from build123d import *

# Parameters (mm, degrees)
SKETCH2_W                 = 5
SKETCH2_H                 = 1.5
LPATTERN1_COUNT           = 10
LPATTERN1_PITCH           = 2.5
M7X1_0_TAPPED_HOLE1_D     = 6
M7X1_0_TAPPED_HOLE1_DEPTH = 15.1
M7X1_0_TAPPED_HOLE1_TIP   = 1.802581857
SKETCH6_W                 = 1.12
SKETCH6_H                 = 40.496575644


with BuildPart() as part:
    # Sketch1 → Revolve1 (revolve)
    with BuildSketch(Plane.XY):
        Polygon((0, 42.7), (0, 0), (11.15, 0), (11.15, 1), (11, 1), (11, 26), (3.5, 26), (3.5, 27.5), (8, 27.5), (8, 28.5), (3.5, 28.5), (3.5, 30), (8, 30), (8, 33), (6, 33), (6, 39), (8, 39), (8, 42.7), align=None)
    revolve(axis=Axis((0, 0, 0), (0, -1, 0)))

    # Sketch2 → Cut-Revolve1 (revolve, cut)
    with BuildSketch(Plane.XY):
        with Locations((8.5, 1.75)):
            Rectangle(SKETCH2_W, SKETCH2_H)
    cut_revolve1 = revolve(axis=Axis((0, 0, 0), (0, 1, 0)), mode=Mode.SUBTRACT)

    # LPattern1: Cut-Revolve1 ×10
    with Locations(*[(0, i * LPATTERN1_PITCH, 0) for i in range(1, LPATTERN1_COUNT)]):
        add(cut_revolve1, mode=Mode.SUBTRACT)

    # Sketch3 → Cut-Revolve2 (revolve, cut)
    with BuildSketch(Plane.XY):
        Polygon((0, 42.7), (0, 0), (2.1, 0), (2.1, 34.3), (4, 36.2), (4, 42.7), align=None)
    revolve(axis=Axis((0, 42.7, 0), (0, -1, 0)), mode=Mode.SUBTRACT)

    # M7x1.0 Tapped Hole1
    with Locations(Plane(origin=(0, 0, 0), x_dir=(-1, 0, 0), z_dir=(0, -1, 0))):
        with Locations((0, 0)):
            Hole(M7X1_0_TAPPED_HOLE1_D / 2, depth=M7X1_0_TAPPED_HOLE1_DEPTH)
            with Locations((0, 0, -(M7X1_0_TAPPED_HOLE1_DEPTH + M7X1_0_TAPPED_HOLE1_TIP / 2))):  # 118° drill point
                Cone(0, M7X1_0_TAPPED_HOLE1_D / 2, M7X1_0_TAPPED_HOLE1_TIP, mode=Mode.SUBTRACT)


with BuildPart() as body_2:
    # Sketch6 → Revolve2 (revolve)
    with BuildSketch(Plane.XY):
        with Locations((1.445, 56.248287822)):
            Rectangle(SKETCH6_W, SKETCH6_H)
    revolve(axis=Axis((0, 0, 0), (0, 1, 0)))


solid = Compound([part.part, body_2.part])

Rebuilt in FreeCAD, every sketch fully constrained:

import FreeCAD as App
import Part
import Sketcher

V = App.Vector
Q = App.Units.Quantity

doc = App.newDocument("Part")
body = doc.addObject("PartDesign::Body", "Body")

# Sketch on XY plane
sketch1 = body.newObject("Sketcher::SketchObject", "Sketch")
sketch1.AttachmentSupport = (doc.getObject("XY_Plane"), [""])
sketch1.MapMode = "FlatFace"
sketch1.addGeometry([
    Part.LineSegment(V(0, 42.7, 0), V(0, 0, 0)),  # 0
    Part.LineSegment(V(0, 0, 0), V(11.15, 0, 0)),  # 1
    Part.LineSegment(V(11.15, 0, 0), V(11.15, 1, 0)),  # 2
    Part.LineSegment(V(11.15, 1, 0), V(11, 1, 0)),  # 3
    Part.LineSegment(V(11, 1, 0), V(11, 26, 0)),  # 4
    Part.LineSegment(V(11, 26, 0), V(3.5, 26, 0)),  # 5
    Part.LineSegment(V(3.5, 26, 0), V(3.5, 27.5, 0)),  # 6
    Part.LineSegment(V(3.5, 27.5, 0), V(8, 27.5, 0)),  # 7
    Part.LineSegment(V(8, 27.5, 0), V(8, 28.5, 0)),  # 8
    Part.LineSegment(V(8, 28.5, 0), V(3.5, 28.5, 0)),  # 9
    Part.LineSegment(V(3.5, 28.5, 0), V(3.5, 30, 0)),  # 10
    Part.LineSegment(V(3.5, 30, 0), V(8, 30, 0)),  # 11
    Part.LineSegment(V(8, 30, 0), V(8, 33, 0)),  # 12
    Part.LineSegment(V(8, 33, 0), V(6, 33, 0)),  # 13
    Part.LineSegment(V(6, 33, 0), V(6, 39, 0)),  # 14
    Part.LineSegment(V(6, 39, 0), V(8, 39, 0)),  # 15
    Part.LineSegment(V(8, 39, 0), V(8, 42.7, 0)),  # 16
    Part.LineSegment(V(8, 42.7, 0), V(0, 42.7, 0)),  # 17
], False)
sketch1.addConstraint([
    Sketcher.Constraint("Coincident", 0, 2, 1, 1),
    Sketcher.Constraint("Coincident", 1, 2, 2, 1),
    Sketcher.Constraint("Coincident", 2, 2, 3, 1),
    Sketcher.Constraint("Coincident", 3, 2, 4, 1),
    Sketcher.Constraint("Coincident", 4, 2, 5, 1),
    Sketcher.Constraint("Coincident", 5, 2, 6, 1),
    Sketcher.Constraint("Coincident", 6, 2, 7, 1),
    Sketcher.Constraint("Coincident", 7, 2, 8, 1),
    Sketcher.Constraint("Coincident", 8, 2, 9, 1),
    Sketcher.Constraint("Coincident", 9, 2, 10, 1),
    Sketcher.Constraint("Coincident", 10, 2, 11, 1),
    Sketcher.Constraint("Coincident", 11, 2, 12, 1),
    Sketcher.Constraint("Coincident", 12, 2, 13, 1),
    Sketcher.Constraint("Coincident", 13, 2, 14, 1),
    Sketcher.Constraint("Coincident", 14, 2, 15, 1),
    Sketcher.Constraint("Coincident", 15, 2, 16, 1),
    Sketcher.Constraint("Coincident", 16, 2, 17, 1),
    Sketcher.Constraint("Coincident", 17, 2, 0, 1),
    Sketcher.Constraint("Vertical", 0),
    Sketcher.Constraint("Horizontal", 1),
    Sketcher.Constraint("Vertical", 2),
    Sketcher.Constraint("Horizontal", 3),
    Sketcher.Constraint("Vertical", 4),
    Sketcher.Constraint("Horizontal", 5),
    Sketcher.Constraint("Vertical", 6),
    Sketcher.Constraint("Horizontal", 7),
    Sketcher.Constraint("Vertical", 8),
    Sketcher.Constraint("Horizontal", 9),
    Sketcher.Constraint("Vertical", 10),
    Sketcher.Constraint("Horizontal", 11),
    Sketcher.Constraint("Vertical", 12),
    Sketcher.Constraint("Horizontal", 13),
    Sketcher.Constraint("Vertical", 14),
    Sketcher.Constraint("Horizontal", 15),
    Sketcher.Constraint("Vertical", 16),
    Sketcher.Constraint("Horizontal", 17),
    Sketcher.Constraint("Coincident", 0, 2, -1, 1),
    Sketcher.Constraint("Vertical", 6, 2, 9, 2),
    Sketcher.Constraint("Vertical", 8, 2, 11, 2),
    Sketcher.Constraint("Vertical", 12, 2, 15, 2),
    Sketcher.Constraint("Equal", 2, 8),
    Sketcher.Constraint("Equal", 6, 10),
    Sketcher.Constraint("DistanceX", 13, 2, 13, 1, 2.0),
    Sketcher.Constraint("DistanceX", 17, 2, 17, 1, 8.0),
    Sketcher.Constraint("DistanceY", 2, 1, 2, 2, 1.0),
    Sketcher.Constraint("DistanceY", 4, 1, 4, 2, 25.0),
    Sketcher.Constraint("DistanceY", 12, 1, 12, 2, 3.0),
    Sketcher.Constraint("DistanceY", 14, 1, 14, 2, 6.0),
    Sketcher.Constraint("DistanceX", 5, 2, 5, 1, 7.5),
    Sketcher.Constraint("DistanceX", 7, 1, 7, 2, 4.5),
    Sketcher.Constraint("DistanceY", 0, 2, 0, 1, 42.7),
    Sketcher.Constraint("DistanceY", 6, 1, 6, 2, 1.5),
    Sketcher.Constraint("DistanceX", 1, 1, 1, 2, 11.15),
])
revolution = body.newObject("PartDesign::Revolution", "Revolution")
revolution.Profile = sketch1
revolution.ReferenceAxis = (sketch1, ["V_Axis"])
revolution.Angle = 360

# Sketch on XY plane
sketch2 = body.newObject("Sketcher::SketchObject", "Sketch001")
sketch2.AttachmentSupport = (doc.getObject("XY_Plane"), [""])
sketch2.MapMode = "FlatFace"
sketch2.addGeometry([
    Part.LineSegment(V(6, 2.5, 0), V(6, 1, 0)),
    Part.LineSegment(V(6, 1, 0), V(11, 1, 0)),
    Part.LineSegment(V(11, 1, 0), V(11, 2.5, 0)),
    Part.LineSegment(V(11, 2.5, 0), V(6, 2.5, 0)),
], False)
sketch2.addConstraint([
    Sketcher.Constraint("Coincident", 0, 2, 1, 1),
    Sketcher.Constraint("Coincident", 1, 2, 2, 1),
    Sketcher.Constraint("Coincident", 2, 2, 3, 1),
    Sketcher.Constraint("Coincident", 3, 2, 0, 1),
    Sketcher.Constraint("Vertical", 0),
    Sketcher.Constraint("Horizontal", 1),
    Sketcher.Constraint("Vertical", 2),
    Sketcher.Constraint("Horizontal", 3),
    Sketcher.Constraint("DistanceX", 1, 1, 1, 2, 5.0),
    Sketcher.Constraint("DistanceY", 0, 2, 0, 1, 1.5),
    Sketcher.Constraint("DistanceX", -1, 1, 0, 2, 6.0),
    Sketcher.Constraint("DistanceY", -1, 1, 0, 2, 1.0),
])
groove = body.newObject("PartDesign::Groove", "Groove")
groove.Profile = sketch2
groove.ReferenceAxis = (sketch2, ["V_Axis"])
groove.Angle = 360
doc.recompute()

linearpattern = body.newObject("PartDesign::LinearPattern", "LinearPattern")
linearpattern.Originals = [groove]
linearpattern.Direction = (doc.getObject("Y_Axis"), [""])
linearpattern.Mode = "offset"
linearpattern.Offset = 2.5
linearpattern.Occurrences = 10
body.Tip = linearpattern

# Sketch on XY plane
sketch3 = body.newObject("Sketcher::SketchObject", "Sketch002")
sketch3.AttachmentSupport = (doc.getObject("XY_Plane"), [""])
sketch3.MapMode = "FlatFace"
sketch3.addGeometry([
    Part.LineSegment(V(0, 42.7, 0), V(0, 0, 0)),  # 0
    Part.LineSegment(V(0, 0, 0), V(2.1, 0, 0)),  # 1
    Part.LineSegment(V(2.1, 0, 0), V(2.1, 34.3, 0)),  # 2
    Part.LineSegment(V(2.1, 34.3, 0), V(4, 36.2, 0)),  # 3
    Part.LineSegment(V(4, 36.2, 0), V(4, 42.7, 0)),  # 4
    Part.LineSegment(V(4, 42.7, 0), V(0, 42.7, 0)),  # 5
], False)
sketch3.addConstraint([
    Sketcher.Constraint("Coincident", 0, 2, 1, 1),
    Sketcher.Constraint("Coincident", 1, 2, 2, 1),
    Sketcher.Constraint("Coincident", 2, 2, 3, 1),
    Sketcher.Constraint("Coincident", 3, 2, 4, 1),
    Sketcher.Constraint("Coincident", 4, 2, 5, 1),
    Sketcher.Constraint("Coincident", 5, 2, 0, 1),
    Sketcher.Constraint("Vertical", 0),
    Sketcher.Constraint("Horizontal", 1),
    Sketcher.Constraint("Vertical", 2),
    Sketcher.Constraint("Vertical", 4),
    Sketcher.Constraint("Horizontal", 5),
    Sketcher.Constraint("Coincident", 0, 2, -1, 1),
    Sketcher.Constraint("DistanceX", 5, 2, 5, 1, 4.0),
    Sketcher.Constraint("Angle", 3, Q("45 deg")),
    Sketcher.Constraint("DistanceX", 1, 1, 1, 2, 2.1),
    Sketcher.Constraint("DistanceY", 0, 2, 0, 1, 42.7),
    Sketcher.Constraint("DistanceY", 2, 1, 2, 2, 34.3),
])
groove2 = body.newObject("PartDesign::Groove", "Groove001")
groove2.Profile = sketch3
groove2.ReferenceAxis = (sketch3, ["V_Axis"])
groove2.Angle = 360

# Sketch on XZ plane
sketch4 = body.newObject("Sketcher::SketchObject", "Sketch003")
sketch4.AttachmentSupport = (doc.getObject("XZ_Plane"), [""])
sketch4.MapMode = "FlatFace"
sketch4.addGeometry(Part.Circle(V(0, 0, 0), V(0, 0, 1), 3), False)
sketch4.addConstraint([
    Sketcher.Constraint("Coincident", 0, 3, -1, 1),
    Sketcher.Constraint("Diameter", 0, 6.0),
])
doc.recompute()
hole = body.newObject("PartDesign::Hole", "Hole")
hole.Profile = sketch4
hole.ThreadType = "None"
hole.Diameter = 6
hole.DepthType = "Dimension"
hole.Depth = 15.1
hole.DrillPoint = "Angled"
hole.DrillPointAngle = 118
body2 = doc.addObject("PartDesign::Body", "Body001")

# Sketch on XY plane
sketch5 = body2.newObject("Sketcher::SketchObject", "Sketch004")
sketch5.AttachmentSupport = (doc.getObject("XY_Plane001"), [""])
sketch5.MapMode = "FlatFace"
sketch5.addGeometry([
    Part.LineSegment(V(0.9, 76.5, 0), V(0.9, 36, 0)),
    Part.LineSegment(V(0.9, 36, 0), V(2, 36, 0)),
    Part.LineSegment(V(2, 36, 0), V(2, 76.5, 0)),
    Part.LineSegment(V(2, 76.5, 0), V(0.9, 76.5, 0)),
], False)
sketch5.addConstraint([
    Sketcher.Constraint("Coincident", 0, 2, 1, 1),
    Sketcher.Constraint("Coincident", 1, 2, 2, 1),
    Sketcher.Constraint("Coincident", 2, 2, 3, 1),
    Sketcher.Constraint("Coincident", 3, 2, 0, 1),
    Sketcher.Constraint("Vertical", 0),
    Sketcher.Constraint("Horizontal", 1),
    Sketcher.Constraint("Vertical", 2),
    Sketcher.Constraint("Horizontal", 3),
    Sketcher.Constraint("DistanceY", -1, 1, 0, 2, 36.0),
    Sketcher.Constraint("DistanceX", 1, 1, 1, 2, 1.12),
    Sketcher.Constraint("DistanceX", -1, 1, 0, 2, 0.885),
    Sketcher.Constraint("DistanceY", 0, 2, 0, 1, 40.496576),
])
revolution2 = body2.newObject("PartDesign::Revolution", "Revolution001")
revolution2.Profile = sketch5
revolution2.ReferenceAxis = (sketch5, ["V_Axis"])
revolution2.Angle = 360

doc.recompute()
